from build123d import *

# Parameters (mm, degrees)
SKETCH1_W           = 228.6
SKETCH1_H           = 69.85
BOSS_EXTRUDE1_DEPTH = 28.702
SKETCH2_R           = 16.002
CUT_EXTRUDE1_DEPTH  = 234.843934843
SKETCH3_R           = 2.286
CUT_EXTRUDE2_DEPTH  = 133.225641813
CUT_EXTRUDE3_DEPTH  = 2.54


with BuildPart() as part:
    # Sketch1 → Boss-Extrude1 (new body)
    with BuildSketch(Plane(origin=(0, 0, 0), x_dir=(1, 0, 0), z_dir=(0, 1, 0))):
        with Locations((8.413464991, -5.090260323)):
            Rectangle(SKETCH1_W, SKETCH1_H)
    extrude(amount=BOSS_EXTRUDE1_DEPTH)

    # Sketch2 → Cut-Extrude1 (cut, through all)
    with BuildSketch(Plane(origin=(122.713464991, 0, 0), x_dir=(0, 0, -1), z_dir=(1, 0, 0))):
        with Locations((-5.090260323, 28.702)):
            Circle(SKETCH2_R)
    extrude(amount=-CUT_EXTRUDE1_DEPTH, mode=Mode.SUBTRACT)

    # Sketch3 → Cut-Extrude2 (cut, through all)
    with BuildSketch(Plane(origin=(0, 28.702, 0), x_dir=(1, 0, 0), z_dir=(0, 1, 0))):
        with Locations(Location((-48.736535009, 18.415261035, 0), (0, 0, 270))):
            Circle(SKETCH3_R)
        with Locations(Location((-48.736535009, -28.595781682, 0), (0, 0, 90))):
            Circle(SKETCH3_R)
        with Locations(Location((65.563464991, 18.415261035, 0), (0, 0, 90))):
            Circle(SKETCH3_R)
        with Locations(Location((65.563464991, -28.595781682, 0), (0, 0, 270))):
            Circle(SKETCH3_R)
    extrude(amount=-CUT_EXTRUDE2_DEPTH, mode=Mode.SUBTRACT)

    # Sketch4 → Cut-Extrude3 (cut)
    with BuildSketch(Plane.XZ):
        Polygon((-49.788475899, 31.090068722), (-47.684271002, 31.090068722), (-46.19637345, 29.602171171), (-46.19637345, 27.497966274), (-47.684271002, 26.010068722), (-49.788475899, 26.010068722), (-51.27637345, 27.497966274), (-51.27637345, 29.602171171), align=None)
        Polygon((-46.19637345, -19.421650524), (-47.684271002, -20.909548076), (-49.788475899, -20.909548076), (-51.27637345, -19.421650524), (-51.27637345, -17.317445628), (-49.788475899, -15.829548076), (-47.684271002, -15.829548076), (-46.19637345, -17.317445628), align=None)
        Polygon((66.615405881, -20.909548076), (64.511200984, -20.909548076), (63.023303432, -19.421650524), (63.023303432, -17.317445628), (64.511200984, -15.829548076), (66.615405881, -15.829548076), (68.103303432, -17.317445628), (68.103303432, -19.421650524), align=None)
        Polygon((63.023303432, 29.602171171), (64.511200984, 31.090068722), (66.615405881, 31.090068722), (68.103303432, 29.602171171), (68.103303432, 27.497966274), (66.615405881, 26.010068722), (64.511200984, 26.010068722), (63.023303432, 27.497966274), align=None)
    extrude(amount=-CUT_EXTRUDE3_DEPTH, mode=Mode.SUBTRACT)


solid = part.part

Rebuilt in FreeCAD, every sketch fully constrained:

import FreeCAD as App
import Part
import Sketcher

V = App.Vector
Q = App.Units.Quantity


def add_polygon(sketch, points):
    """Adds a closed chain of lines whose ends are joined by coincident constraints."""
    first, n = sketch.GeometryCount, len(points)
    for a, b in zip(points, points[1:] + points[:1]):
        sketch.addGeometry(Part.LineSegment(App.Vector(*a, 0), App.Vector(*b, 0)), False)
    for i in range(n):
        sketch.addConstraint(Sketcher.Constraint("Coincident", first + i, 2, first + (i + 1) % n, 1))

doc = App.newDocument("Part")
params = doc.addObject("Spreadsheet::Sheet", "Params")
for row, (alias, value) in enumerate([
    ("sketch1_width", "9 in"),
    ("sketch1_height", "2.75 in"),
    ("pad1_length", "1.13 in"),
    ("sketch2_diameter", "1.26 in"),
    ("sketch3_diameter", "0.18 in"),
    ("pocket3_length", "0.1 in"),
], start=1):
    params.set(f"A{row}", alias)
    params.set(f"B{row}", "=" + value)
    params.setAlias(f"B{row}", alias)

body = doc.addObject("PartDesign::Body", "Body")

sketch1 = doc.addObject("Sketcher::SketchObject", "Sketch")
body.addObject(sketch1)
sketch1.AttachmentSupport = (doc.XZ_Plane, [""])
sketch1.MapMode = "FlatFace"
add_polygon(sketch1, [(-106, -30), (-106, 40), (123, 40), (123, -30)])
sketch1.addConstraint(Sketcher.Constraint("Vertical", 0))
sketch1.addConstraint(Sketcher.Constraint("Horizontal", 1))
sketch1.addConstraint(Sketcher.Constraint("Vertical", 2))
sketch1.addConstraint(Sketcher.Constraint("Horizontal", 3))
sketch1.addConstraint(Sketcher.Constraint("DistanceX", 1, 1, 1, 2, Q("9 in")))
sketch1.addConstraint(Sketcher.Constraint("DistanceY", 0, 1, 0, 2, Q("2.75 in")))
sketch1.addConstraint(Sketcher.Constraint("DistanceY", -1, 1, 0, 2, 40.01526))
sketch1.addConstraint(Sketcher.Constraint("DistanceX", 0, 2, -1, 1, 105.886535))
sketch1.setExpression("Constraints[8]", "Params.sketch1_width")
sketch1.setExpression("Constraints[9]", "Params.sketch1_height")
pad1 = doc.addObject("PartDesign::Pad", "Pad")
body.addObject(pad1)
pad1.Profile = sketch1
pad1.setExpression("Length", "Params.pad1_length")
pad1.Reversed = True

sketch2 = doc.addObject("Sketcher::SketchObject", "Sketch001")
body.addObject(sketch2)
sketch2.AttachmentSupport = (doc.YZ_Plane, [""])
sketch2.MapMode = "FlatFace"
sketch2.AttachmentOffset = App.Placement(V(0, 0, 122.713465), App.Rotation())
sketch2.addGeometry(Part.Circle(V(29, 5, 0), V(0, 0, 1), 16), False)
sketch2.addConstraint(Sketcher.Constraint("Diameter", 0, Q("1.26 in")))
sketch2.addConstraint(Sketcher.Constraint("DistanceX", -1, 1, 0, 3, Q("1.13 in")))
sketch2.addConstraint(Sketcher.Constraint("DistanceY", -1, 1, 0, 3, 5.09026))
sketch2.setExpression("Constraints[0]", "Params.sketch2_diameter")
pocket1 = doc.addObject("PartDesign::Pocket", "Pocket")
body.addObject(pocket1)
pocket1.Profile = sketch2
pocket1.Type = "ThroughAll"

sketch3 = doc.addObject("Sketcher::SketchObject", "Sketch002")
body.addObject(sketch3)
sketch3.AttachmentSupport = (doc.XZ_Plane, [""])
sketch3.MapMode = "FlatFace"
sketch3.AttachmentOffset = App.Placement(V(0, 0, -1.13 * 25.4), App.Rotation())
sketch3.addGeometry(Part.Circle(V(-48.7, -18.4, 0), V(0, 0, 1), 2.3), False)
sketch3.addGeometry(Part.Circle(V(-48.7, 28.6, 0), V(0, 0, 1), 2.3), False)
sketch3.addGeometry(Part.Circle(V(65.6, -18.4, 0), V(0, 0, 1), 2.3), False)
sketch3.addGeometry(Part.Circle(V(65.6, 28.6, 0), V(0, 0, 1), 2.3), False)
sketch3.addConstraint(Sketcher.Constraint("Equal", 0, 1))
sketch3.addConstraint(Sketcher.Constraint("Equal", 1, 2))
sketch3.addConstraint(Sketcher.Constraint("Equal", 2, 3))
sketch3.addConstraint(Sketcher.Constraint("Horizontal", 0, 3, 2, 3))
sketch3.addConstraint(Sketcher.Constraint("Horizontal", 1, 3, 3, 3))
sketch3.addConstraint(Sketcher.Constraint("Vertical", 0, 3, 1, 3))
sketch3.addConstraint(Sketcher.Constraint("Vertical", 2, 3, 3, 3))
sketch3.addConstraint(Sketcher.Constraint("Diameter", 0, Q("0.18 in")))
sketch3.addConstraint(Sketcher.Constraint("DistanceX", 0, 3, 2, 3, Q("4.5 in")))
sketch3.addConstraint(Sketcher.Constraint("DistanceY", 0, 3, -1, 1, 18.415261))
sketch3.addConstraint(Sketcher.Constraint("DistanceY", -1, 1, 1, 3, 28.595782))
sketch3.addConstraint(Sketcher.Constraint("DistanceX", 0, 3, -1, 1, 48.736535))
sketch3.setExpression("Constraints[7]", "Params.sketch3_diameter")
pocket2 = doc.addObject("PartDesign::Pocket", "Pocket001")
body.addObject(pocket2)
pocket2.Profile = sketch3
pocket2.Type = "ThroughAll"
pocket2.Reversed = True

sketch4 = doc.addObject("Sketcher::SketchObject", "Sketch003")
body.addObject(sketch4)
sketch4.AttachmentSupport = (doc.XZ_Plane, [""])
sketch4.MapMode = "FlatFace"
add_polygon(sketch4, [(-47.7, 31.1), (-49.8, 31.1), (-51.3, 29.6), (-51.3, 27.5), (-49.8, 26), (-47.7, 26), (-46.2, 27.5), (-46.2, 29.6)])
add_polygon(sketch4, [(-47.7, -20.9), (-46.2, -19.4), (-46.2, -17.3), (-47.7, -15.8), (-49.8, -15.8), (-51.3, -17.3), (-51.3, -19.4), (-49.8, -20.9)])
add_polygon(sketch4, [(64.5, -20.9), (66.6, -20.9), (68.1, -19.4), (68.1, -17.3), (66.6, -15.8), (64.5, -15.8), (63, -17.3), (63, -19.4)])
add_polygon(sketch4, [(64.5, 31.1), (63, 29.6), (63, 27.5), (64.5, 26), (66.6, 26), (68.1, 27.5), (68.1, 29.6), (66.6, 31.1)])
sketch4.addConstraint(Sketcher.Constraint("Horizontal", 0))
sketch4.addConstraint(Sketcher.Constraint("Vertical", 2))
sketch4.addConstraint(Sketcher.Constraint("Horizontal", 4))
sketch4.addConstraint(Sketcher.Constraint("Vertical", 6))
sketch4.addConstraint(Sketcher.Constraint("Vertical", 9))
sketch4.addConstraint(Sketcher.Constraint("Horizontal", 11))
sketch4.addConstraint(Sketcher.Constraint("Vertical", 13))
sketch4.addConstraint(Sketcher.Constraint("Horizontal", 15))
sketch4.addConstraint(Sketcher.Constraint("Horizontal", 16))
sketch4.addConstraint(Sketcher.Constraint("Vertical", 18))
sketch4.addConstraint(Sketcher.Constraint("Horizontal", 20))
sketch4.addConstraint(Sketcher.Constraint("Vertical", 22))
sketch4.addConstraint(Sketcher.Constraint("Vertical", 25))
sketch4.addConstraint(Sketcher.Constraint("Horizontal", 27))
sketch4.addConstraint(Sketcher.Constraint("Vertical", 29))
sketch4.addConstraint(Sketcher.Constraint("Horizontal", 31))
sketch4.addConstraint(Sketcher.Constraint("Perpendicular", 1, 3))
sketch4.addConstraint(Sketcher.Constraint("Perpendicular", 3, 5))
sketch4.addConstraint(Sketcher.Constraint("Perpendicular", 5, 7))
sketch4.addConstraint(Sketcher.Constraint("Perpendicular", 7, 8))
sketch4.addConstraint(Sketcher.Constraint("Perpendicular", 8, 10))
sketch4.addConstraint(Sketcher.Constraint("Perpendicular", 10, 12))
sketch4.addConstraint(Sketcher.Constraint("Perpendicular", 12, 14))
sketch4.addConstraint(Sketcher.Constraint("Perpendicular", 14, 17))
sketch4.addConstraint(Sketcher.Constraint("Perpendicular", 17, 19))
sketch4.addConstraint(Sketcher.Constraint("Perpendicular", 19, 21))
sketch4.addConstraint(Sketcher.Constraint("Perpendicular", 21, 23))
sketch4.addConstraint(Sketcher.Constraint("Perpendicular", 23, 24))
sketch4.addConstraint(Sketcher.Constraint("Perpendicular", 24, 26))
sketch4.addConstraint(Sketcher.Constraint("Perpendicular", 26, 28))
sketch4.addConstraint(Sketcher.Constraint("Perpendicular", 28, 30))
sketch4.addConstraint(Sketcher.Constraint("Horizontal", 2, 2, 5, 2))
sketch4.addConstraint(Sketcher.Constraint("Horizontal", 1, 2, 6, 2))
sketch4.addConstraint(Sketcher.Constraint("Horizontal", 9, 2, 12, 2))
sketch4.addConstraint(Sketcher.Constraint("Horizontal", 8, 2, 13, 2))
sketch4.addConstraint(Sketcher.Constraint("Horizontal", 15, 2, 16, 2))
sketch4.addConstraint(Sketcher.Constraint("Horizontal", 13, 2, 17, 2))
sketch4.addConstraint(Sketcher.Constraint("Horizontal", 12, 2, 18, 2))
sketch4.addConstraint(Sketcher.Constraint("Horizontal", 11, 2, 19, 2))
sketch4.addConstraint(Sketcher.Constraint("Horizontal", 18, 2, 21, 2))
sketch4.addConstraint(Sketcher.Constraint("Horizontal", 17, 2, 22, 2))
sketch4.addConstraint(Sketcher.Constraint("Horizontal", 6, 2, 24, 2))
sketch4.addConstraint(Sketcher.Constraint("Horizontal", 5, 2, 25, 2))
sketch4.addConstraint(Sketcher.Constraint("Horizontal", 4, 2, 26, 2))
sketch4.addConstraint(Sketcher.Constraint("Horizontal", 25, 2, 28, 2))
sketch4.addConstraint(Sketcher.Constraint("Horizontal", 24, 2, 29, 2))
sketch4.addConstraint(Sketcher.Constraint("Horizontal", 7, 2, 30, 2))
sketch4.addConstraint(Sketcher.Constraint("Vertical", 0, 2, 3, 2))
sketch4.addConstraint(Sketcher.Constraint("Vertical", 4, 2, 7, 2))
sketch4.addConstraint(Sketcher.Constraint("Vertical", 6, 2, 8, 2))
sketch4.addConstraint(Sketcher.Constraint("Vertical", 7, 2, 10, 2))
sketch4.addConstraint(Sketcher.Constraint("Vertical", 3, 2, 11, 2))
sketch4.addConstraint(Sketcher.Constraint("Vertical", 11, 2, 14, 2))
sketch4.addConstraint(Sketcher.Constraint("Vertical", 22, 2, 24, 2))
sketch4.addConstraint(Sketcher.Constraint("Vertical", 19, 2, 27, 2))
sketch4.addConstraint(Sketcher.Constraint("Equal", 15, 16))
sketch4.addConstraint(Sketcher.Constraint("Equal", 31, 2))
sketch4.addConstraint(Sketcher.Constraint("Equal", 6, 9))
sketch4.addConstraint(Sketcher.Constraint("DistanceY", 3, 2, 0, 2, Q("0.2 in")))
sketch4.addConstraint(Sketcher.Constraint("DistanceX", -1, 1, 20, 2, 64.511201))
sketch4.addConstraint(Sketcher.Constraint("DistanceX", 0, 2, 0, 1, 2.104205))
sketch4.addConstraint(Sketcher.Constraint("DistanceY", -1, 1, 0, 2, 31.090069))
sketch4.addConstraint(Sketcher.Constraint("DistanceX", 4, 2, -1, 1, 47.684271))
sketch4.addConstraint(Sketcher.Constraint("DistanceY", 8, 2, -1, 1, 19.421651))
pocket3 = doc.addObject("PartDesign::Pocket", "Pocket002")
body.addObject(pocket3)
pocket3.Profile = sketch4
pocket3.setExpression("Length", "Params.pocket3_length")

doc.recompute()
